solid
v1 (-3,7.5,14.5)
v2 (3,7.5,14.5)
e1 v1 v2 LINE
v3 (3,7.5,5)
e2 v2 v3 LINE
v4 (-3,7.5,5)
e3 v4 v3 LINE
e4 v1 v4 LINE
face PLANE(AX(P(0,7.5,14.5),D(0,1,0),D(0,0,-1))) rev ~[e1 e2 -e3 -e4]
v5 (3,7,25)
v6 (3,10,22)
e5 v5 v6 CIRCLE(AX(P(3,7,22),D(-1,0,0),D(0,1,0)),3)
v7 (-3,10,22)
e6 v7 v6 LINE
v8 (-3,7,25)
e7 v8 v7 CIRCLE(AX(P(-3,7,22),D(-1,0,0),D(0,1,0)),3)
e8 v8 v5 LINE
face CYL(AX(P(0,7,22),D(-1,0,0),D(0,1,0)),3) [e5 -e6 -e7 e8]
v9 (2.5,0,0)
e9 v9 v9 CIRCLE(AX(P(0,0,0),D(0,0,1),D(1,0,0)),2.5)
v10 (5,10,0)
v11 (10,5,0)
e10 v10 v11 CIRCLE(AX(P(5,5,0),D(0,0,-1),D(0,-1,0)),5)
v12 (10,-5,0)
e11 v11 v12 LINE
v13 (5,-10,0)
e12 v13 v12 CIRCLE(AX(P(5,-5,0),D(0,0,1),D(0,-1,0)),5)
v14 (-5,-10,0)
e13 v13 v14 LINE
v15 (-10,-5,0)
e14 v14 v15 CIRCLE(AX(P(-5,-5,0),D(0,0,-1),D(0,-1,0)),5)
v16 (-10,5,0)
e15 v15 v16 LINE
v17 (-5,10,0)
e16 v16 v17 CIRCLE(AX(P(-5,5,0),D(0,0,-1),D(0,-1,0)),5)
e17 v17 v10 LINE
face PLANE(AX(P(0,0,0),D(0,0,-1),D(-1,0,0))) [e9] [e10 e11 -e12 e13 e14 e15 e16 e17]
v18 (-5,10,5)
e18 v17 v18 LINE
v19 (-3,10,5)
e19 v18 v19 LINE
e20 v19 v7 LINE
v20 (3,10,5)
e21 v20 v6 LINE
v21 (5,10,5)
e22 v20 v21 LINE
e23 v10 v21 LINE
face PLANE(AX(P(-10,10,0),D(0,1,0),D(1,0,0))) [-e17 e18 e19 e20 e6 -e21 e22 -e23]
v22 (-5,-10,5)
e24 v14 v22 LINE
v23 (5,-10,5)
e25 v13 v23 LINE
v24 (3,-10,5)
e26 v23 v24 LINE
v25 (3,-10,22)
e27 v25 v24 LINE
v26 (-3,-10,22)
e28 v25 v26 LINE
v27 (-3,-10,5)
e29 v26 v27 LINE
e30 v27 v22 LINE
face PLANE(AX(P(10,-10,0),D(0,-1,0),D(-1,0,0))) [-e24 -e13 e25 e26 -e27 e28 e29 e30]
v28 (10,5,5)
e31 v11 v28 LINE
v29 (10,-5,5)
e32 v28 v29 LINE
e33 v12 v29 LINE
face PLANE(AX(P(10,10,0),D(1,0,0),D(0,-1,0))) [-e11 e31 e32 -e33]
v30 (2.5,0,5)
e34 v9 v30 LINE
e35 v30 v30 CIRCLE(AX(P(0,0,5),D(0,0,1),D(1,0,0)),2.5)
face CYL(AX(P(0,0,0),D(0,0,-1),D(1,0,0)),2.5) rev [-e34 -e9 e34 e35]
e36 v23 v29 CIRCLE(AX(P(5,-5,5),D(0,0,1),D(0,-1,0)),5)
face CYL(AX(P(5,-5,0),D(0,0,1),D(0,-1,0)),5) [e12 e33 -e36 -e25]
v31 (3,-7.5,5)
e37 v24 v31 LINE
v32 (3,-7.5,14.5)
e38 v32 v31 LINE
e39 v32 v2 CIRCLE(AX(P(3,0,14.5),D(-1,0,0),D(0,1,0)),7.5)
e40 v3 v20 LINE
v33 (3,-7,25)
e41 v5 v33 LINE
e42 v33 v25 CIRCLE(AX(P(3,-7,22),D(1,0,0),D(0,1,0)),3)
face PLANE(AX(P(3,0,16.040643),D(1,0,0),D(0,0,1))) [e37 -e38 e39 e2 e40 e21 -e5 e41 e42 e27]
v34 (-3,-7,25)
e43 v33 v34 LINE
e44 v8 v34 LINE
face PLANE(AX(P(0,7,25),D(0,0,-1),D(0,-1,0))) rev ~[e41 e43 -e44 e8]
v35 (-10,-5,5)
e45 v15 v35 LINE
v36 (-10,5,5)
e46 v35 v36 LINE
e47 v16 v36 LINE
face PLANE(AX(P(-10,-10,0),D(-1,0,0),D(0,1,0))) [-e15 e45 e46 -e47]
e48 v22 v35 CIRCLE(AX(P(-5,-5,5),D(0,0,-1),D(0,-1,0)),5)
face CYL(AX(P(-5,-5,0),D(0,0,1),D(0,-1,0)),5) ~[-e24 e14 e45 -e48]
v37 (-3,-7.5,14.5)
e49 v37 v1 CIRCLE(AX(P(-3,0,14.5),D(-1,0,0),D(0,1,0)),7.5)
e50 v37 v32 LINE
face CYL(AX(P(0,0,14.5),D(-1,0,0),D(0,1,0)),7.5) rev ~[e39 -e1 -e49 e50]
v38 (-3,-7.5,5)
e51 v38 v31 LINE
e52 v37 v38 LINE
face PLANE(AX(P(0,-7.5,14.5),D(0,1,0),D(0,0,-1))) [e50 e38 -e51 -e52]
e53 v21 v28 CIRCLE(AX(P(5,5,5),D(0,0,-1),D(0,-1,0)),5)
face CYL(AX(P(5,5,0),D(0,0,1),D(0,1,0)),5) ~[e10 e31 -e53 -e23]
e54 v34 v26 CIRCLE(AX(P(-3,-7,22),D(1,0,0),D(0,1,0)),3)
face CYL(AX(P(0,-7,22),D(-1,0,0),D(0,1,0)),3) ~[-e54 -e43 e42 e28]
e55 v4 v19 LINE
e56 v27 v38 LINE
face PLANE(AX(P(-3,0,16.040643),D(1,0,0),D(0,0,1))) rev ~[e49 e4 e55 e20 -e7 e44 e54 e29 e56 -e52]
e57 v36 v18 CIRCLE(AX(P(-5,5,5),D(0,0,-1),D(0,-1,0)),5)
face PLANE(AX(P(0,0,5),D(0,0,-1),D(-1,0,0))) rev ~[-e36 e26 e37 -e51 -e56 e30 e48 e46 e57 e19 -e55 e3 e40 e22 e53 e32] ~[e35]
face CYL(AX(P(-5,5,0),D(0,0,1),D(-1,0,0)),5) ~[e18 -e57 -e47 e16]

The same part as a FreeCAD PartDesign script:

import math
import FreeCAD as App
import Part
import Sketcher
from FreeCAD import Vector


def edges_at(feature, points):
    """Names of the edges that pass closest to the given points."""
    edges = feature.Shape.Edges
    near = lambda p: min(range(len(edges)), key=lambda i: edges[i].distToShape(Part.Vertex(*p))[0])
    return sorted({f"Edge{near(p) + 1}" for p in points})

doc = App.newDocument("Part")
params = doc.addObject("Spreadsheet::Sheet", "Params")
for row, (alias, value) in enumerate([
    ("sketch1_diameter", "5 mm"),
    ("sketch1_width", "20 mm"),
    ("pad1_length", "5 mm"),
    ("fillet_radius", "5 mm"),
    ("sketch2_radius", "3 mm"),
    ("sketch2_radius2", "7.5 mm"),
    ("sketch2_width", "14 mm"),
    ("sketch2_height", "17 mm"),
    ("sketch2_height2", "9.5 mm"),
    ("pad2_length", "6 mm"),
], start=1):
    params.set(f"A{row}", alias)
    params.set(f"B{row}", "=" + value)
    params.setAlias(f"B{row}", alias)

body = doc.addObject("PartDesign::Body", "Body")

# Sketch on XY plane
sketch1 = body.newObject("Sketcher::SketchObject", "Sketch")
sketch1.AttachmentSupport = (doc.getObject("XY_Plane"), [""])
sketch1.MapMode = "FlatFace"
sketch1.addGeometry([
    Part.LineSegment(Vector(-10, -10, 0), Vector(10, -10, 0)),  # 0
    Part.LineSegment(Vector(10, -10, 0), Vector(10, 10, 0)),  # 1
    Part.LineSegment(Vector(10, 10, 0), Vector(-10, 10, 0)),  # 2
    Part.LineSegment(Vector(-10, 10, 0), Vector(-10, -10, 0)),  # 3
    Part.Circle(Vector(0, 0, 0), Vector(0, 0, 1), 2.5),  # 4
], False)
sketch1.addConstraint([
    Sketcher.Constraint("Coincident", 0, 2, 1, 1),
    Sketcher.Constraint("Coincident", 1, 2, 2, 1),
    Sketcher.Constraint("Coincident", 2, 2, 3, 1),
    Sketcher.Constraint("Coincident", 3, 2, 0, 1),
    Sketcher.Constraint("Horizontal", 0),
    Sketcher.Constraint("Vertical", 1),
    Sketcher.Constraint("Horizontal", 2),
    Sketcher.Constraint("Vertical", 3),
    Sketcher.Constraint("Coincident", 4, 3, -1, 1),
    Sketcher.Constraint("Symmetric", 0, 2, 2, 2, -1, 1),
    Sketcher.Constraint("Equal", 2, 1),
    Sketcher.Constraint("Diameter", 4, 5.0),
    Sketcher.Constraint("DistanceX", 0, 1, 0, 2, 20.0),
])
sketch1.setExpression("Constraints[11]", "Params.sketch1_diameter")
sketch1.setExpression("Constraints[12]", "Params.sketch1_width")
pad1 = body.newObject("PartDesign::Pad", "Pad")
pad1.Profile = sketch1
pad1.setExpression("Length", "Params.pad1_length")
doc.recompute()

fillet = body.newObject("PartDesign::Fillet", "Fillet")
fillet.Base = (pad1, edges_at(pad1, [
    (10, -10, 2.5),
    (10, 10, 2.5),
    (-10, 10, 2.5),
    (-10, -10, 2.5),
]))
fillet.setExpression("Radius", "Params.fillet_radius")

# Sketch on YZ plane
sketch2 = body.newObject("Sketcher::SketchObject", "Sketch001")
sketch2.AttachmentSupport = (doc.getObject("YZ_Plane"), [""])
sketch2.MapMode = "FlatFace"
sketch2.addGeometry([
    Part.LineSegment(Vector(-10, 22, 0), Vector(-10, 5, 0)),  # 0
    Part.LineSegment(Vector(-10, 5, 0), Vector(-7.5, 5, 0)),  # 1
    Part.LineSegment(Vector(-7.5, 5, 0), Vector(-7.5, 14.5, 0)),  # 2
    Part.ArcOfCircle(Part.Circle(Vector(0, 14.5, 0), Vector(0, 0, 1), 7.5), math.radians(0), math.radians(180)),  # 3
    Part.LineSegment(Vector(7.5, 14.5, 0), Vector(7.5, 5, 0)),  # 4
    Part.LineSegment(Vector(7.5, 5, 0), Vector(10, 5, 0)),  # 5
    Part.LineSegment(Vector(10, 5, 0), Vector(10, 22, 0)),  # 6
    Part.ArcOfCircle(Part.Circle(Vector(7, 22, 0), Vector(0, 0, 1), 3), math.radians(0), math.radians(90)),  # 7
    Part.LineSegment(Vector(7, 25, 0), Vector(-7, 25, 0)),  # 8
    Part.ArcOfCircle(Part.Circle(Vector(-7, 22, 0), Vector(0, 0, 1), 3), math.radians(90), math.radians(180)),  # 9
], False)
sketch2.addConstraint([
    Sketcher.Constraint("Coincident", 0, 2, 1, 1),
    Sketcher.Constraint("Coincident", 1, 2, 2, 1),
    Sketcher.Constraint("Tangent", 2, 2, 3, 2),
    Sketcher.Constraint("Tangent", 3, 1, 4, 1),
    Sketcher.Constraint("Coincident", 4, 2, 5, 1),
    Sketcher.Constraint("Coincident", 5, 2, 6, 1),
    Sketcher.Constraint("Tangent", 6, 2, 7, 1),
    Sketcher.Constraint("Tangent", 7, 2, 8, 1),
    Sketcher.Constraint("Tangent", 8, 2, 9, 1),
    Sketcher.Constraint("Tangent", 9, 2, 0, 1),
    Sketcher.Constraint("Vertical", 0),
    Sketcher.Constraint("Horizontal", 1),
    Sketcher.Constraint("Vertical", 2),
    Sketcher.Constraint("Vertical", 4),
    Sketcher.Constraint("Horizontal", 5),
    Sketcher.Constraint("Vertical", 6),
    Sketcher.Constraint("Horizontal", 8),
    Sketcher.Constraint("Equal", 7, 9),
    Sketcher.Constraint("Symmetric", 1, 2, 4, 2, -2),
    Sketcher.Constraint("Equal", 1, 5),
    Sketcher.Constraint("Radius", 7, 3.0),
    Sketcher.Constraint("Radius", 3, 7.5),
    Sketcher.Constraint("DistanceX", 8, 2, 8, 1, 14.0),
    Sketcher.Constraint("DistanceY", 0, 2, 0, 1, 17.0),
    Sketcher.Constraint("DistanceY", 2, 1, 2, 2, 9.5),
    Sketcher.Constraint("DistanceY", -1, 1, 7, 3, 22.0),
])
sketch2.setExpression("Constraints[20]", "Params.sketch2_radius")
sketch2.setExpression("Constraints[21]", "Params.sketch2_radius2")
sketch2.setExpression("Constraints[22]", "Params.sketch2_width")
sketch2.setExpression("Constraints[23]", "Params.sketch2_height")
sketch2.setExpression("Constraints[24]", "Params.sketch2_height2")
pad2 = body.newObject("PartDesign::Pad", "Pad001")
pad2.Profile = sketch2
pad2.setExpression("Length", "Params.pad2_length")
pad2.Midplane = True

doc.recompute()
